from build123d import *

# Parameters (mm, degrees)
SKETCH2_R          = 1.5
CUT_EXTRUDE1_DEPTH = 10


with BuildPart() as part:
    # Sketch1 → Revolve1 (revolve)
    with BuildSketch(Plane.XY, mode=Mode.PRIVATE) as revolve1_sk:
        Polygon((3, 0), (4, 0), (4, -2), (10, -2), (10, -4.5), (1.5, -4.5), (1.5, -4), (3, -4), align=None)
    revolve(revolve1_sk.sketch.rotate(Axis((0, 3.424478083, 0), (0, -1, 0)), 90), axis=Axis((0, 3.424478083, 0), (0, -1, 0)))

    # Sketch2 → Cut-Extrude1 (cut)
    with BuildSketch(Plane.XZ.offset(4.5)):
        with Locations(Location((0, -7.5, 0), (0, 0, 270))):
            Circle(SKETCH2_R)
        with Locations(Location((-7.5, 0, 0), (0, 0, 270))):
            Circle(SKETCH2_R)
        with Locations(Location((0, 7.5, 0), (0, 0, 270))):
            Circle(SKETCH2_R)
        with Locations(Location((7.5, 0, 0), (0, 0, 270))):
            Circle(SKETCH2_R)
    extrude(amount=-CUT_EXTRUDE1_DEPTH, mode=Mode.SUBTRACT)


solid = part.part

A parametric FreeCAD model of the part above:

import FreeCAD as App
import Part
import Sketcher

V = App.Vector


def add_polygon(sketch, points):
    """Adds a closed chain of lines whose ends are joined by coincident constraints."""
    first, n = sketch.GeometryCount, len(points)
    for a, b in zip(points, points[1:] + points[:1]):
        sketch.addGeometry(Part.LineSegment(App.Vector(*a, 0), App.Vector(*b, 0)), False)
    for i in range(n):
        sketch.addConstraint(Sketcher.Constraint("Coincident", first + i, 2, first + (i + 1) % n, 1))

doc = App.newDocument("Part")
body = doc.addObject("PartDesign::Body", "Body")

sketch1 = body.newObject("Sketcher::SketchObject", "Sketch")
sketch1.AttachmentSupport = (doc.getObject("XY_Plane"), [""])
sketch1.MapMode = "FlatFace"
add_polygon(sketch1, [(4, 0), (3, 0), (3, -4), (1.5, -4), (1.5, -4.5), (10, -4.5), (10, -2), (4, -2)])
sketch1.addConstraint([
    Sketcher.Constraint("Horizontal", 0),
    Sketcher.Constraint("Vertical", 1),
    Sketcher.Constraint("Horizontal", 2),
    Sketcher.Constraint("Vertical", 3),
    Sketcher.Constraint("Horizontal", 4),
    Sketcher.Constraint("Vertical", 5),
    Sketcher.Constraint("Horizontal", 6),
    Sketcher.Constraint("Vertical", 7),
    Sketcher.Constraint("PointOnObject", 0, 2, -1),
    Sketcher.Constraint("DistanceX", 0, 2, 0, 1, 1.0),
    Sketcher.Constraint("DistanceX", 6, 2, 6, 1, 6.0),
    Sketcher.Constraint("DistanceY", 1, 2, 1, 1, 4.0),
    Sketcher.Constraint("DistanceY", 7, 1, 7, 2, 2.0),
    Sketcher.Constraint("DistanceX", 2, 2, 2, 1, 1.5),
    Sketcher.Constraint("DistanceY", 3, 2, 3, 1, 0.5),
    Sketcher.Constraint("DistanceX", -1, 1, 0, 2, 3.0),
])
revolution = body.newObject("PartDesign::Revolution", "Revolution")
revolution.Profile = sketch1
revolution.ReferenceAxis = (sketch1, ["V_Axis"])
revolution.Angle = 360

sketch2 = body.newObject("Sketcher::SketchObject", "Sketch001")
sketch2.AttachmentSupport = (doc.getObject("XZ_Plane"), [""])
sketch2.MapMode = "FlatFace"
sketch2.AttachmentOffset = App.Placement(V(0, 0, 4.5), App.Rotation())
sketch2.addGeometry([
    Part.Circle(V(0, -7.5, 0), V(0, 0, 1), 1.5),
    Part.Circle(V(-7.5, 0, 0), V(0, 0, 1), 1.5),
    Part.Circle(V(0, 7.5, 0), V(0, 0, 1), 1.5),
    Part.Circle(V(7.5, 0, 0), V(0, 0, 1), 1.5),
], False)
sketch2.addConstraint([
    Sketcher.Constraint("Equal", 0, 1),
    Sketcher.Constraint("Equal", 1, 2),
    Sketcher.Constraint("Equal", 2, 3),
    Sketcher.Constraint("Symmetric", 0, 3, 2, 3, -1, 1),
    Sketcher.Constraint("Symmetric", 1, 3, 3, 3, -1, 1),
    Sketcher.Constraint("PointOnObject", 0, 3, -2),
    Sketcher.Constraint("PointOnObject", 1, 3, -1),
    Sketcher.Constraint("Diameter", 0, 3.0),
    Sketcher.Constraint("DistanceY", 0, 3, 2, 3, 15.0),
    Sketcher.Constraint("DistanceX", 1, 3, 3, 3, 15.0),
])
pocket1 = body.newObject("PartDesign::Pocket", "Pocket")
pocket1.Profile = sketch2
pocket1.Length = 10

doc.recompute()
